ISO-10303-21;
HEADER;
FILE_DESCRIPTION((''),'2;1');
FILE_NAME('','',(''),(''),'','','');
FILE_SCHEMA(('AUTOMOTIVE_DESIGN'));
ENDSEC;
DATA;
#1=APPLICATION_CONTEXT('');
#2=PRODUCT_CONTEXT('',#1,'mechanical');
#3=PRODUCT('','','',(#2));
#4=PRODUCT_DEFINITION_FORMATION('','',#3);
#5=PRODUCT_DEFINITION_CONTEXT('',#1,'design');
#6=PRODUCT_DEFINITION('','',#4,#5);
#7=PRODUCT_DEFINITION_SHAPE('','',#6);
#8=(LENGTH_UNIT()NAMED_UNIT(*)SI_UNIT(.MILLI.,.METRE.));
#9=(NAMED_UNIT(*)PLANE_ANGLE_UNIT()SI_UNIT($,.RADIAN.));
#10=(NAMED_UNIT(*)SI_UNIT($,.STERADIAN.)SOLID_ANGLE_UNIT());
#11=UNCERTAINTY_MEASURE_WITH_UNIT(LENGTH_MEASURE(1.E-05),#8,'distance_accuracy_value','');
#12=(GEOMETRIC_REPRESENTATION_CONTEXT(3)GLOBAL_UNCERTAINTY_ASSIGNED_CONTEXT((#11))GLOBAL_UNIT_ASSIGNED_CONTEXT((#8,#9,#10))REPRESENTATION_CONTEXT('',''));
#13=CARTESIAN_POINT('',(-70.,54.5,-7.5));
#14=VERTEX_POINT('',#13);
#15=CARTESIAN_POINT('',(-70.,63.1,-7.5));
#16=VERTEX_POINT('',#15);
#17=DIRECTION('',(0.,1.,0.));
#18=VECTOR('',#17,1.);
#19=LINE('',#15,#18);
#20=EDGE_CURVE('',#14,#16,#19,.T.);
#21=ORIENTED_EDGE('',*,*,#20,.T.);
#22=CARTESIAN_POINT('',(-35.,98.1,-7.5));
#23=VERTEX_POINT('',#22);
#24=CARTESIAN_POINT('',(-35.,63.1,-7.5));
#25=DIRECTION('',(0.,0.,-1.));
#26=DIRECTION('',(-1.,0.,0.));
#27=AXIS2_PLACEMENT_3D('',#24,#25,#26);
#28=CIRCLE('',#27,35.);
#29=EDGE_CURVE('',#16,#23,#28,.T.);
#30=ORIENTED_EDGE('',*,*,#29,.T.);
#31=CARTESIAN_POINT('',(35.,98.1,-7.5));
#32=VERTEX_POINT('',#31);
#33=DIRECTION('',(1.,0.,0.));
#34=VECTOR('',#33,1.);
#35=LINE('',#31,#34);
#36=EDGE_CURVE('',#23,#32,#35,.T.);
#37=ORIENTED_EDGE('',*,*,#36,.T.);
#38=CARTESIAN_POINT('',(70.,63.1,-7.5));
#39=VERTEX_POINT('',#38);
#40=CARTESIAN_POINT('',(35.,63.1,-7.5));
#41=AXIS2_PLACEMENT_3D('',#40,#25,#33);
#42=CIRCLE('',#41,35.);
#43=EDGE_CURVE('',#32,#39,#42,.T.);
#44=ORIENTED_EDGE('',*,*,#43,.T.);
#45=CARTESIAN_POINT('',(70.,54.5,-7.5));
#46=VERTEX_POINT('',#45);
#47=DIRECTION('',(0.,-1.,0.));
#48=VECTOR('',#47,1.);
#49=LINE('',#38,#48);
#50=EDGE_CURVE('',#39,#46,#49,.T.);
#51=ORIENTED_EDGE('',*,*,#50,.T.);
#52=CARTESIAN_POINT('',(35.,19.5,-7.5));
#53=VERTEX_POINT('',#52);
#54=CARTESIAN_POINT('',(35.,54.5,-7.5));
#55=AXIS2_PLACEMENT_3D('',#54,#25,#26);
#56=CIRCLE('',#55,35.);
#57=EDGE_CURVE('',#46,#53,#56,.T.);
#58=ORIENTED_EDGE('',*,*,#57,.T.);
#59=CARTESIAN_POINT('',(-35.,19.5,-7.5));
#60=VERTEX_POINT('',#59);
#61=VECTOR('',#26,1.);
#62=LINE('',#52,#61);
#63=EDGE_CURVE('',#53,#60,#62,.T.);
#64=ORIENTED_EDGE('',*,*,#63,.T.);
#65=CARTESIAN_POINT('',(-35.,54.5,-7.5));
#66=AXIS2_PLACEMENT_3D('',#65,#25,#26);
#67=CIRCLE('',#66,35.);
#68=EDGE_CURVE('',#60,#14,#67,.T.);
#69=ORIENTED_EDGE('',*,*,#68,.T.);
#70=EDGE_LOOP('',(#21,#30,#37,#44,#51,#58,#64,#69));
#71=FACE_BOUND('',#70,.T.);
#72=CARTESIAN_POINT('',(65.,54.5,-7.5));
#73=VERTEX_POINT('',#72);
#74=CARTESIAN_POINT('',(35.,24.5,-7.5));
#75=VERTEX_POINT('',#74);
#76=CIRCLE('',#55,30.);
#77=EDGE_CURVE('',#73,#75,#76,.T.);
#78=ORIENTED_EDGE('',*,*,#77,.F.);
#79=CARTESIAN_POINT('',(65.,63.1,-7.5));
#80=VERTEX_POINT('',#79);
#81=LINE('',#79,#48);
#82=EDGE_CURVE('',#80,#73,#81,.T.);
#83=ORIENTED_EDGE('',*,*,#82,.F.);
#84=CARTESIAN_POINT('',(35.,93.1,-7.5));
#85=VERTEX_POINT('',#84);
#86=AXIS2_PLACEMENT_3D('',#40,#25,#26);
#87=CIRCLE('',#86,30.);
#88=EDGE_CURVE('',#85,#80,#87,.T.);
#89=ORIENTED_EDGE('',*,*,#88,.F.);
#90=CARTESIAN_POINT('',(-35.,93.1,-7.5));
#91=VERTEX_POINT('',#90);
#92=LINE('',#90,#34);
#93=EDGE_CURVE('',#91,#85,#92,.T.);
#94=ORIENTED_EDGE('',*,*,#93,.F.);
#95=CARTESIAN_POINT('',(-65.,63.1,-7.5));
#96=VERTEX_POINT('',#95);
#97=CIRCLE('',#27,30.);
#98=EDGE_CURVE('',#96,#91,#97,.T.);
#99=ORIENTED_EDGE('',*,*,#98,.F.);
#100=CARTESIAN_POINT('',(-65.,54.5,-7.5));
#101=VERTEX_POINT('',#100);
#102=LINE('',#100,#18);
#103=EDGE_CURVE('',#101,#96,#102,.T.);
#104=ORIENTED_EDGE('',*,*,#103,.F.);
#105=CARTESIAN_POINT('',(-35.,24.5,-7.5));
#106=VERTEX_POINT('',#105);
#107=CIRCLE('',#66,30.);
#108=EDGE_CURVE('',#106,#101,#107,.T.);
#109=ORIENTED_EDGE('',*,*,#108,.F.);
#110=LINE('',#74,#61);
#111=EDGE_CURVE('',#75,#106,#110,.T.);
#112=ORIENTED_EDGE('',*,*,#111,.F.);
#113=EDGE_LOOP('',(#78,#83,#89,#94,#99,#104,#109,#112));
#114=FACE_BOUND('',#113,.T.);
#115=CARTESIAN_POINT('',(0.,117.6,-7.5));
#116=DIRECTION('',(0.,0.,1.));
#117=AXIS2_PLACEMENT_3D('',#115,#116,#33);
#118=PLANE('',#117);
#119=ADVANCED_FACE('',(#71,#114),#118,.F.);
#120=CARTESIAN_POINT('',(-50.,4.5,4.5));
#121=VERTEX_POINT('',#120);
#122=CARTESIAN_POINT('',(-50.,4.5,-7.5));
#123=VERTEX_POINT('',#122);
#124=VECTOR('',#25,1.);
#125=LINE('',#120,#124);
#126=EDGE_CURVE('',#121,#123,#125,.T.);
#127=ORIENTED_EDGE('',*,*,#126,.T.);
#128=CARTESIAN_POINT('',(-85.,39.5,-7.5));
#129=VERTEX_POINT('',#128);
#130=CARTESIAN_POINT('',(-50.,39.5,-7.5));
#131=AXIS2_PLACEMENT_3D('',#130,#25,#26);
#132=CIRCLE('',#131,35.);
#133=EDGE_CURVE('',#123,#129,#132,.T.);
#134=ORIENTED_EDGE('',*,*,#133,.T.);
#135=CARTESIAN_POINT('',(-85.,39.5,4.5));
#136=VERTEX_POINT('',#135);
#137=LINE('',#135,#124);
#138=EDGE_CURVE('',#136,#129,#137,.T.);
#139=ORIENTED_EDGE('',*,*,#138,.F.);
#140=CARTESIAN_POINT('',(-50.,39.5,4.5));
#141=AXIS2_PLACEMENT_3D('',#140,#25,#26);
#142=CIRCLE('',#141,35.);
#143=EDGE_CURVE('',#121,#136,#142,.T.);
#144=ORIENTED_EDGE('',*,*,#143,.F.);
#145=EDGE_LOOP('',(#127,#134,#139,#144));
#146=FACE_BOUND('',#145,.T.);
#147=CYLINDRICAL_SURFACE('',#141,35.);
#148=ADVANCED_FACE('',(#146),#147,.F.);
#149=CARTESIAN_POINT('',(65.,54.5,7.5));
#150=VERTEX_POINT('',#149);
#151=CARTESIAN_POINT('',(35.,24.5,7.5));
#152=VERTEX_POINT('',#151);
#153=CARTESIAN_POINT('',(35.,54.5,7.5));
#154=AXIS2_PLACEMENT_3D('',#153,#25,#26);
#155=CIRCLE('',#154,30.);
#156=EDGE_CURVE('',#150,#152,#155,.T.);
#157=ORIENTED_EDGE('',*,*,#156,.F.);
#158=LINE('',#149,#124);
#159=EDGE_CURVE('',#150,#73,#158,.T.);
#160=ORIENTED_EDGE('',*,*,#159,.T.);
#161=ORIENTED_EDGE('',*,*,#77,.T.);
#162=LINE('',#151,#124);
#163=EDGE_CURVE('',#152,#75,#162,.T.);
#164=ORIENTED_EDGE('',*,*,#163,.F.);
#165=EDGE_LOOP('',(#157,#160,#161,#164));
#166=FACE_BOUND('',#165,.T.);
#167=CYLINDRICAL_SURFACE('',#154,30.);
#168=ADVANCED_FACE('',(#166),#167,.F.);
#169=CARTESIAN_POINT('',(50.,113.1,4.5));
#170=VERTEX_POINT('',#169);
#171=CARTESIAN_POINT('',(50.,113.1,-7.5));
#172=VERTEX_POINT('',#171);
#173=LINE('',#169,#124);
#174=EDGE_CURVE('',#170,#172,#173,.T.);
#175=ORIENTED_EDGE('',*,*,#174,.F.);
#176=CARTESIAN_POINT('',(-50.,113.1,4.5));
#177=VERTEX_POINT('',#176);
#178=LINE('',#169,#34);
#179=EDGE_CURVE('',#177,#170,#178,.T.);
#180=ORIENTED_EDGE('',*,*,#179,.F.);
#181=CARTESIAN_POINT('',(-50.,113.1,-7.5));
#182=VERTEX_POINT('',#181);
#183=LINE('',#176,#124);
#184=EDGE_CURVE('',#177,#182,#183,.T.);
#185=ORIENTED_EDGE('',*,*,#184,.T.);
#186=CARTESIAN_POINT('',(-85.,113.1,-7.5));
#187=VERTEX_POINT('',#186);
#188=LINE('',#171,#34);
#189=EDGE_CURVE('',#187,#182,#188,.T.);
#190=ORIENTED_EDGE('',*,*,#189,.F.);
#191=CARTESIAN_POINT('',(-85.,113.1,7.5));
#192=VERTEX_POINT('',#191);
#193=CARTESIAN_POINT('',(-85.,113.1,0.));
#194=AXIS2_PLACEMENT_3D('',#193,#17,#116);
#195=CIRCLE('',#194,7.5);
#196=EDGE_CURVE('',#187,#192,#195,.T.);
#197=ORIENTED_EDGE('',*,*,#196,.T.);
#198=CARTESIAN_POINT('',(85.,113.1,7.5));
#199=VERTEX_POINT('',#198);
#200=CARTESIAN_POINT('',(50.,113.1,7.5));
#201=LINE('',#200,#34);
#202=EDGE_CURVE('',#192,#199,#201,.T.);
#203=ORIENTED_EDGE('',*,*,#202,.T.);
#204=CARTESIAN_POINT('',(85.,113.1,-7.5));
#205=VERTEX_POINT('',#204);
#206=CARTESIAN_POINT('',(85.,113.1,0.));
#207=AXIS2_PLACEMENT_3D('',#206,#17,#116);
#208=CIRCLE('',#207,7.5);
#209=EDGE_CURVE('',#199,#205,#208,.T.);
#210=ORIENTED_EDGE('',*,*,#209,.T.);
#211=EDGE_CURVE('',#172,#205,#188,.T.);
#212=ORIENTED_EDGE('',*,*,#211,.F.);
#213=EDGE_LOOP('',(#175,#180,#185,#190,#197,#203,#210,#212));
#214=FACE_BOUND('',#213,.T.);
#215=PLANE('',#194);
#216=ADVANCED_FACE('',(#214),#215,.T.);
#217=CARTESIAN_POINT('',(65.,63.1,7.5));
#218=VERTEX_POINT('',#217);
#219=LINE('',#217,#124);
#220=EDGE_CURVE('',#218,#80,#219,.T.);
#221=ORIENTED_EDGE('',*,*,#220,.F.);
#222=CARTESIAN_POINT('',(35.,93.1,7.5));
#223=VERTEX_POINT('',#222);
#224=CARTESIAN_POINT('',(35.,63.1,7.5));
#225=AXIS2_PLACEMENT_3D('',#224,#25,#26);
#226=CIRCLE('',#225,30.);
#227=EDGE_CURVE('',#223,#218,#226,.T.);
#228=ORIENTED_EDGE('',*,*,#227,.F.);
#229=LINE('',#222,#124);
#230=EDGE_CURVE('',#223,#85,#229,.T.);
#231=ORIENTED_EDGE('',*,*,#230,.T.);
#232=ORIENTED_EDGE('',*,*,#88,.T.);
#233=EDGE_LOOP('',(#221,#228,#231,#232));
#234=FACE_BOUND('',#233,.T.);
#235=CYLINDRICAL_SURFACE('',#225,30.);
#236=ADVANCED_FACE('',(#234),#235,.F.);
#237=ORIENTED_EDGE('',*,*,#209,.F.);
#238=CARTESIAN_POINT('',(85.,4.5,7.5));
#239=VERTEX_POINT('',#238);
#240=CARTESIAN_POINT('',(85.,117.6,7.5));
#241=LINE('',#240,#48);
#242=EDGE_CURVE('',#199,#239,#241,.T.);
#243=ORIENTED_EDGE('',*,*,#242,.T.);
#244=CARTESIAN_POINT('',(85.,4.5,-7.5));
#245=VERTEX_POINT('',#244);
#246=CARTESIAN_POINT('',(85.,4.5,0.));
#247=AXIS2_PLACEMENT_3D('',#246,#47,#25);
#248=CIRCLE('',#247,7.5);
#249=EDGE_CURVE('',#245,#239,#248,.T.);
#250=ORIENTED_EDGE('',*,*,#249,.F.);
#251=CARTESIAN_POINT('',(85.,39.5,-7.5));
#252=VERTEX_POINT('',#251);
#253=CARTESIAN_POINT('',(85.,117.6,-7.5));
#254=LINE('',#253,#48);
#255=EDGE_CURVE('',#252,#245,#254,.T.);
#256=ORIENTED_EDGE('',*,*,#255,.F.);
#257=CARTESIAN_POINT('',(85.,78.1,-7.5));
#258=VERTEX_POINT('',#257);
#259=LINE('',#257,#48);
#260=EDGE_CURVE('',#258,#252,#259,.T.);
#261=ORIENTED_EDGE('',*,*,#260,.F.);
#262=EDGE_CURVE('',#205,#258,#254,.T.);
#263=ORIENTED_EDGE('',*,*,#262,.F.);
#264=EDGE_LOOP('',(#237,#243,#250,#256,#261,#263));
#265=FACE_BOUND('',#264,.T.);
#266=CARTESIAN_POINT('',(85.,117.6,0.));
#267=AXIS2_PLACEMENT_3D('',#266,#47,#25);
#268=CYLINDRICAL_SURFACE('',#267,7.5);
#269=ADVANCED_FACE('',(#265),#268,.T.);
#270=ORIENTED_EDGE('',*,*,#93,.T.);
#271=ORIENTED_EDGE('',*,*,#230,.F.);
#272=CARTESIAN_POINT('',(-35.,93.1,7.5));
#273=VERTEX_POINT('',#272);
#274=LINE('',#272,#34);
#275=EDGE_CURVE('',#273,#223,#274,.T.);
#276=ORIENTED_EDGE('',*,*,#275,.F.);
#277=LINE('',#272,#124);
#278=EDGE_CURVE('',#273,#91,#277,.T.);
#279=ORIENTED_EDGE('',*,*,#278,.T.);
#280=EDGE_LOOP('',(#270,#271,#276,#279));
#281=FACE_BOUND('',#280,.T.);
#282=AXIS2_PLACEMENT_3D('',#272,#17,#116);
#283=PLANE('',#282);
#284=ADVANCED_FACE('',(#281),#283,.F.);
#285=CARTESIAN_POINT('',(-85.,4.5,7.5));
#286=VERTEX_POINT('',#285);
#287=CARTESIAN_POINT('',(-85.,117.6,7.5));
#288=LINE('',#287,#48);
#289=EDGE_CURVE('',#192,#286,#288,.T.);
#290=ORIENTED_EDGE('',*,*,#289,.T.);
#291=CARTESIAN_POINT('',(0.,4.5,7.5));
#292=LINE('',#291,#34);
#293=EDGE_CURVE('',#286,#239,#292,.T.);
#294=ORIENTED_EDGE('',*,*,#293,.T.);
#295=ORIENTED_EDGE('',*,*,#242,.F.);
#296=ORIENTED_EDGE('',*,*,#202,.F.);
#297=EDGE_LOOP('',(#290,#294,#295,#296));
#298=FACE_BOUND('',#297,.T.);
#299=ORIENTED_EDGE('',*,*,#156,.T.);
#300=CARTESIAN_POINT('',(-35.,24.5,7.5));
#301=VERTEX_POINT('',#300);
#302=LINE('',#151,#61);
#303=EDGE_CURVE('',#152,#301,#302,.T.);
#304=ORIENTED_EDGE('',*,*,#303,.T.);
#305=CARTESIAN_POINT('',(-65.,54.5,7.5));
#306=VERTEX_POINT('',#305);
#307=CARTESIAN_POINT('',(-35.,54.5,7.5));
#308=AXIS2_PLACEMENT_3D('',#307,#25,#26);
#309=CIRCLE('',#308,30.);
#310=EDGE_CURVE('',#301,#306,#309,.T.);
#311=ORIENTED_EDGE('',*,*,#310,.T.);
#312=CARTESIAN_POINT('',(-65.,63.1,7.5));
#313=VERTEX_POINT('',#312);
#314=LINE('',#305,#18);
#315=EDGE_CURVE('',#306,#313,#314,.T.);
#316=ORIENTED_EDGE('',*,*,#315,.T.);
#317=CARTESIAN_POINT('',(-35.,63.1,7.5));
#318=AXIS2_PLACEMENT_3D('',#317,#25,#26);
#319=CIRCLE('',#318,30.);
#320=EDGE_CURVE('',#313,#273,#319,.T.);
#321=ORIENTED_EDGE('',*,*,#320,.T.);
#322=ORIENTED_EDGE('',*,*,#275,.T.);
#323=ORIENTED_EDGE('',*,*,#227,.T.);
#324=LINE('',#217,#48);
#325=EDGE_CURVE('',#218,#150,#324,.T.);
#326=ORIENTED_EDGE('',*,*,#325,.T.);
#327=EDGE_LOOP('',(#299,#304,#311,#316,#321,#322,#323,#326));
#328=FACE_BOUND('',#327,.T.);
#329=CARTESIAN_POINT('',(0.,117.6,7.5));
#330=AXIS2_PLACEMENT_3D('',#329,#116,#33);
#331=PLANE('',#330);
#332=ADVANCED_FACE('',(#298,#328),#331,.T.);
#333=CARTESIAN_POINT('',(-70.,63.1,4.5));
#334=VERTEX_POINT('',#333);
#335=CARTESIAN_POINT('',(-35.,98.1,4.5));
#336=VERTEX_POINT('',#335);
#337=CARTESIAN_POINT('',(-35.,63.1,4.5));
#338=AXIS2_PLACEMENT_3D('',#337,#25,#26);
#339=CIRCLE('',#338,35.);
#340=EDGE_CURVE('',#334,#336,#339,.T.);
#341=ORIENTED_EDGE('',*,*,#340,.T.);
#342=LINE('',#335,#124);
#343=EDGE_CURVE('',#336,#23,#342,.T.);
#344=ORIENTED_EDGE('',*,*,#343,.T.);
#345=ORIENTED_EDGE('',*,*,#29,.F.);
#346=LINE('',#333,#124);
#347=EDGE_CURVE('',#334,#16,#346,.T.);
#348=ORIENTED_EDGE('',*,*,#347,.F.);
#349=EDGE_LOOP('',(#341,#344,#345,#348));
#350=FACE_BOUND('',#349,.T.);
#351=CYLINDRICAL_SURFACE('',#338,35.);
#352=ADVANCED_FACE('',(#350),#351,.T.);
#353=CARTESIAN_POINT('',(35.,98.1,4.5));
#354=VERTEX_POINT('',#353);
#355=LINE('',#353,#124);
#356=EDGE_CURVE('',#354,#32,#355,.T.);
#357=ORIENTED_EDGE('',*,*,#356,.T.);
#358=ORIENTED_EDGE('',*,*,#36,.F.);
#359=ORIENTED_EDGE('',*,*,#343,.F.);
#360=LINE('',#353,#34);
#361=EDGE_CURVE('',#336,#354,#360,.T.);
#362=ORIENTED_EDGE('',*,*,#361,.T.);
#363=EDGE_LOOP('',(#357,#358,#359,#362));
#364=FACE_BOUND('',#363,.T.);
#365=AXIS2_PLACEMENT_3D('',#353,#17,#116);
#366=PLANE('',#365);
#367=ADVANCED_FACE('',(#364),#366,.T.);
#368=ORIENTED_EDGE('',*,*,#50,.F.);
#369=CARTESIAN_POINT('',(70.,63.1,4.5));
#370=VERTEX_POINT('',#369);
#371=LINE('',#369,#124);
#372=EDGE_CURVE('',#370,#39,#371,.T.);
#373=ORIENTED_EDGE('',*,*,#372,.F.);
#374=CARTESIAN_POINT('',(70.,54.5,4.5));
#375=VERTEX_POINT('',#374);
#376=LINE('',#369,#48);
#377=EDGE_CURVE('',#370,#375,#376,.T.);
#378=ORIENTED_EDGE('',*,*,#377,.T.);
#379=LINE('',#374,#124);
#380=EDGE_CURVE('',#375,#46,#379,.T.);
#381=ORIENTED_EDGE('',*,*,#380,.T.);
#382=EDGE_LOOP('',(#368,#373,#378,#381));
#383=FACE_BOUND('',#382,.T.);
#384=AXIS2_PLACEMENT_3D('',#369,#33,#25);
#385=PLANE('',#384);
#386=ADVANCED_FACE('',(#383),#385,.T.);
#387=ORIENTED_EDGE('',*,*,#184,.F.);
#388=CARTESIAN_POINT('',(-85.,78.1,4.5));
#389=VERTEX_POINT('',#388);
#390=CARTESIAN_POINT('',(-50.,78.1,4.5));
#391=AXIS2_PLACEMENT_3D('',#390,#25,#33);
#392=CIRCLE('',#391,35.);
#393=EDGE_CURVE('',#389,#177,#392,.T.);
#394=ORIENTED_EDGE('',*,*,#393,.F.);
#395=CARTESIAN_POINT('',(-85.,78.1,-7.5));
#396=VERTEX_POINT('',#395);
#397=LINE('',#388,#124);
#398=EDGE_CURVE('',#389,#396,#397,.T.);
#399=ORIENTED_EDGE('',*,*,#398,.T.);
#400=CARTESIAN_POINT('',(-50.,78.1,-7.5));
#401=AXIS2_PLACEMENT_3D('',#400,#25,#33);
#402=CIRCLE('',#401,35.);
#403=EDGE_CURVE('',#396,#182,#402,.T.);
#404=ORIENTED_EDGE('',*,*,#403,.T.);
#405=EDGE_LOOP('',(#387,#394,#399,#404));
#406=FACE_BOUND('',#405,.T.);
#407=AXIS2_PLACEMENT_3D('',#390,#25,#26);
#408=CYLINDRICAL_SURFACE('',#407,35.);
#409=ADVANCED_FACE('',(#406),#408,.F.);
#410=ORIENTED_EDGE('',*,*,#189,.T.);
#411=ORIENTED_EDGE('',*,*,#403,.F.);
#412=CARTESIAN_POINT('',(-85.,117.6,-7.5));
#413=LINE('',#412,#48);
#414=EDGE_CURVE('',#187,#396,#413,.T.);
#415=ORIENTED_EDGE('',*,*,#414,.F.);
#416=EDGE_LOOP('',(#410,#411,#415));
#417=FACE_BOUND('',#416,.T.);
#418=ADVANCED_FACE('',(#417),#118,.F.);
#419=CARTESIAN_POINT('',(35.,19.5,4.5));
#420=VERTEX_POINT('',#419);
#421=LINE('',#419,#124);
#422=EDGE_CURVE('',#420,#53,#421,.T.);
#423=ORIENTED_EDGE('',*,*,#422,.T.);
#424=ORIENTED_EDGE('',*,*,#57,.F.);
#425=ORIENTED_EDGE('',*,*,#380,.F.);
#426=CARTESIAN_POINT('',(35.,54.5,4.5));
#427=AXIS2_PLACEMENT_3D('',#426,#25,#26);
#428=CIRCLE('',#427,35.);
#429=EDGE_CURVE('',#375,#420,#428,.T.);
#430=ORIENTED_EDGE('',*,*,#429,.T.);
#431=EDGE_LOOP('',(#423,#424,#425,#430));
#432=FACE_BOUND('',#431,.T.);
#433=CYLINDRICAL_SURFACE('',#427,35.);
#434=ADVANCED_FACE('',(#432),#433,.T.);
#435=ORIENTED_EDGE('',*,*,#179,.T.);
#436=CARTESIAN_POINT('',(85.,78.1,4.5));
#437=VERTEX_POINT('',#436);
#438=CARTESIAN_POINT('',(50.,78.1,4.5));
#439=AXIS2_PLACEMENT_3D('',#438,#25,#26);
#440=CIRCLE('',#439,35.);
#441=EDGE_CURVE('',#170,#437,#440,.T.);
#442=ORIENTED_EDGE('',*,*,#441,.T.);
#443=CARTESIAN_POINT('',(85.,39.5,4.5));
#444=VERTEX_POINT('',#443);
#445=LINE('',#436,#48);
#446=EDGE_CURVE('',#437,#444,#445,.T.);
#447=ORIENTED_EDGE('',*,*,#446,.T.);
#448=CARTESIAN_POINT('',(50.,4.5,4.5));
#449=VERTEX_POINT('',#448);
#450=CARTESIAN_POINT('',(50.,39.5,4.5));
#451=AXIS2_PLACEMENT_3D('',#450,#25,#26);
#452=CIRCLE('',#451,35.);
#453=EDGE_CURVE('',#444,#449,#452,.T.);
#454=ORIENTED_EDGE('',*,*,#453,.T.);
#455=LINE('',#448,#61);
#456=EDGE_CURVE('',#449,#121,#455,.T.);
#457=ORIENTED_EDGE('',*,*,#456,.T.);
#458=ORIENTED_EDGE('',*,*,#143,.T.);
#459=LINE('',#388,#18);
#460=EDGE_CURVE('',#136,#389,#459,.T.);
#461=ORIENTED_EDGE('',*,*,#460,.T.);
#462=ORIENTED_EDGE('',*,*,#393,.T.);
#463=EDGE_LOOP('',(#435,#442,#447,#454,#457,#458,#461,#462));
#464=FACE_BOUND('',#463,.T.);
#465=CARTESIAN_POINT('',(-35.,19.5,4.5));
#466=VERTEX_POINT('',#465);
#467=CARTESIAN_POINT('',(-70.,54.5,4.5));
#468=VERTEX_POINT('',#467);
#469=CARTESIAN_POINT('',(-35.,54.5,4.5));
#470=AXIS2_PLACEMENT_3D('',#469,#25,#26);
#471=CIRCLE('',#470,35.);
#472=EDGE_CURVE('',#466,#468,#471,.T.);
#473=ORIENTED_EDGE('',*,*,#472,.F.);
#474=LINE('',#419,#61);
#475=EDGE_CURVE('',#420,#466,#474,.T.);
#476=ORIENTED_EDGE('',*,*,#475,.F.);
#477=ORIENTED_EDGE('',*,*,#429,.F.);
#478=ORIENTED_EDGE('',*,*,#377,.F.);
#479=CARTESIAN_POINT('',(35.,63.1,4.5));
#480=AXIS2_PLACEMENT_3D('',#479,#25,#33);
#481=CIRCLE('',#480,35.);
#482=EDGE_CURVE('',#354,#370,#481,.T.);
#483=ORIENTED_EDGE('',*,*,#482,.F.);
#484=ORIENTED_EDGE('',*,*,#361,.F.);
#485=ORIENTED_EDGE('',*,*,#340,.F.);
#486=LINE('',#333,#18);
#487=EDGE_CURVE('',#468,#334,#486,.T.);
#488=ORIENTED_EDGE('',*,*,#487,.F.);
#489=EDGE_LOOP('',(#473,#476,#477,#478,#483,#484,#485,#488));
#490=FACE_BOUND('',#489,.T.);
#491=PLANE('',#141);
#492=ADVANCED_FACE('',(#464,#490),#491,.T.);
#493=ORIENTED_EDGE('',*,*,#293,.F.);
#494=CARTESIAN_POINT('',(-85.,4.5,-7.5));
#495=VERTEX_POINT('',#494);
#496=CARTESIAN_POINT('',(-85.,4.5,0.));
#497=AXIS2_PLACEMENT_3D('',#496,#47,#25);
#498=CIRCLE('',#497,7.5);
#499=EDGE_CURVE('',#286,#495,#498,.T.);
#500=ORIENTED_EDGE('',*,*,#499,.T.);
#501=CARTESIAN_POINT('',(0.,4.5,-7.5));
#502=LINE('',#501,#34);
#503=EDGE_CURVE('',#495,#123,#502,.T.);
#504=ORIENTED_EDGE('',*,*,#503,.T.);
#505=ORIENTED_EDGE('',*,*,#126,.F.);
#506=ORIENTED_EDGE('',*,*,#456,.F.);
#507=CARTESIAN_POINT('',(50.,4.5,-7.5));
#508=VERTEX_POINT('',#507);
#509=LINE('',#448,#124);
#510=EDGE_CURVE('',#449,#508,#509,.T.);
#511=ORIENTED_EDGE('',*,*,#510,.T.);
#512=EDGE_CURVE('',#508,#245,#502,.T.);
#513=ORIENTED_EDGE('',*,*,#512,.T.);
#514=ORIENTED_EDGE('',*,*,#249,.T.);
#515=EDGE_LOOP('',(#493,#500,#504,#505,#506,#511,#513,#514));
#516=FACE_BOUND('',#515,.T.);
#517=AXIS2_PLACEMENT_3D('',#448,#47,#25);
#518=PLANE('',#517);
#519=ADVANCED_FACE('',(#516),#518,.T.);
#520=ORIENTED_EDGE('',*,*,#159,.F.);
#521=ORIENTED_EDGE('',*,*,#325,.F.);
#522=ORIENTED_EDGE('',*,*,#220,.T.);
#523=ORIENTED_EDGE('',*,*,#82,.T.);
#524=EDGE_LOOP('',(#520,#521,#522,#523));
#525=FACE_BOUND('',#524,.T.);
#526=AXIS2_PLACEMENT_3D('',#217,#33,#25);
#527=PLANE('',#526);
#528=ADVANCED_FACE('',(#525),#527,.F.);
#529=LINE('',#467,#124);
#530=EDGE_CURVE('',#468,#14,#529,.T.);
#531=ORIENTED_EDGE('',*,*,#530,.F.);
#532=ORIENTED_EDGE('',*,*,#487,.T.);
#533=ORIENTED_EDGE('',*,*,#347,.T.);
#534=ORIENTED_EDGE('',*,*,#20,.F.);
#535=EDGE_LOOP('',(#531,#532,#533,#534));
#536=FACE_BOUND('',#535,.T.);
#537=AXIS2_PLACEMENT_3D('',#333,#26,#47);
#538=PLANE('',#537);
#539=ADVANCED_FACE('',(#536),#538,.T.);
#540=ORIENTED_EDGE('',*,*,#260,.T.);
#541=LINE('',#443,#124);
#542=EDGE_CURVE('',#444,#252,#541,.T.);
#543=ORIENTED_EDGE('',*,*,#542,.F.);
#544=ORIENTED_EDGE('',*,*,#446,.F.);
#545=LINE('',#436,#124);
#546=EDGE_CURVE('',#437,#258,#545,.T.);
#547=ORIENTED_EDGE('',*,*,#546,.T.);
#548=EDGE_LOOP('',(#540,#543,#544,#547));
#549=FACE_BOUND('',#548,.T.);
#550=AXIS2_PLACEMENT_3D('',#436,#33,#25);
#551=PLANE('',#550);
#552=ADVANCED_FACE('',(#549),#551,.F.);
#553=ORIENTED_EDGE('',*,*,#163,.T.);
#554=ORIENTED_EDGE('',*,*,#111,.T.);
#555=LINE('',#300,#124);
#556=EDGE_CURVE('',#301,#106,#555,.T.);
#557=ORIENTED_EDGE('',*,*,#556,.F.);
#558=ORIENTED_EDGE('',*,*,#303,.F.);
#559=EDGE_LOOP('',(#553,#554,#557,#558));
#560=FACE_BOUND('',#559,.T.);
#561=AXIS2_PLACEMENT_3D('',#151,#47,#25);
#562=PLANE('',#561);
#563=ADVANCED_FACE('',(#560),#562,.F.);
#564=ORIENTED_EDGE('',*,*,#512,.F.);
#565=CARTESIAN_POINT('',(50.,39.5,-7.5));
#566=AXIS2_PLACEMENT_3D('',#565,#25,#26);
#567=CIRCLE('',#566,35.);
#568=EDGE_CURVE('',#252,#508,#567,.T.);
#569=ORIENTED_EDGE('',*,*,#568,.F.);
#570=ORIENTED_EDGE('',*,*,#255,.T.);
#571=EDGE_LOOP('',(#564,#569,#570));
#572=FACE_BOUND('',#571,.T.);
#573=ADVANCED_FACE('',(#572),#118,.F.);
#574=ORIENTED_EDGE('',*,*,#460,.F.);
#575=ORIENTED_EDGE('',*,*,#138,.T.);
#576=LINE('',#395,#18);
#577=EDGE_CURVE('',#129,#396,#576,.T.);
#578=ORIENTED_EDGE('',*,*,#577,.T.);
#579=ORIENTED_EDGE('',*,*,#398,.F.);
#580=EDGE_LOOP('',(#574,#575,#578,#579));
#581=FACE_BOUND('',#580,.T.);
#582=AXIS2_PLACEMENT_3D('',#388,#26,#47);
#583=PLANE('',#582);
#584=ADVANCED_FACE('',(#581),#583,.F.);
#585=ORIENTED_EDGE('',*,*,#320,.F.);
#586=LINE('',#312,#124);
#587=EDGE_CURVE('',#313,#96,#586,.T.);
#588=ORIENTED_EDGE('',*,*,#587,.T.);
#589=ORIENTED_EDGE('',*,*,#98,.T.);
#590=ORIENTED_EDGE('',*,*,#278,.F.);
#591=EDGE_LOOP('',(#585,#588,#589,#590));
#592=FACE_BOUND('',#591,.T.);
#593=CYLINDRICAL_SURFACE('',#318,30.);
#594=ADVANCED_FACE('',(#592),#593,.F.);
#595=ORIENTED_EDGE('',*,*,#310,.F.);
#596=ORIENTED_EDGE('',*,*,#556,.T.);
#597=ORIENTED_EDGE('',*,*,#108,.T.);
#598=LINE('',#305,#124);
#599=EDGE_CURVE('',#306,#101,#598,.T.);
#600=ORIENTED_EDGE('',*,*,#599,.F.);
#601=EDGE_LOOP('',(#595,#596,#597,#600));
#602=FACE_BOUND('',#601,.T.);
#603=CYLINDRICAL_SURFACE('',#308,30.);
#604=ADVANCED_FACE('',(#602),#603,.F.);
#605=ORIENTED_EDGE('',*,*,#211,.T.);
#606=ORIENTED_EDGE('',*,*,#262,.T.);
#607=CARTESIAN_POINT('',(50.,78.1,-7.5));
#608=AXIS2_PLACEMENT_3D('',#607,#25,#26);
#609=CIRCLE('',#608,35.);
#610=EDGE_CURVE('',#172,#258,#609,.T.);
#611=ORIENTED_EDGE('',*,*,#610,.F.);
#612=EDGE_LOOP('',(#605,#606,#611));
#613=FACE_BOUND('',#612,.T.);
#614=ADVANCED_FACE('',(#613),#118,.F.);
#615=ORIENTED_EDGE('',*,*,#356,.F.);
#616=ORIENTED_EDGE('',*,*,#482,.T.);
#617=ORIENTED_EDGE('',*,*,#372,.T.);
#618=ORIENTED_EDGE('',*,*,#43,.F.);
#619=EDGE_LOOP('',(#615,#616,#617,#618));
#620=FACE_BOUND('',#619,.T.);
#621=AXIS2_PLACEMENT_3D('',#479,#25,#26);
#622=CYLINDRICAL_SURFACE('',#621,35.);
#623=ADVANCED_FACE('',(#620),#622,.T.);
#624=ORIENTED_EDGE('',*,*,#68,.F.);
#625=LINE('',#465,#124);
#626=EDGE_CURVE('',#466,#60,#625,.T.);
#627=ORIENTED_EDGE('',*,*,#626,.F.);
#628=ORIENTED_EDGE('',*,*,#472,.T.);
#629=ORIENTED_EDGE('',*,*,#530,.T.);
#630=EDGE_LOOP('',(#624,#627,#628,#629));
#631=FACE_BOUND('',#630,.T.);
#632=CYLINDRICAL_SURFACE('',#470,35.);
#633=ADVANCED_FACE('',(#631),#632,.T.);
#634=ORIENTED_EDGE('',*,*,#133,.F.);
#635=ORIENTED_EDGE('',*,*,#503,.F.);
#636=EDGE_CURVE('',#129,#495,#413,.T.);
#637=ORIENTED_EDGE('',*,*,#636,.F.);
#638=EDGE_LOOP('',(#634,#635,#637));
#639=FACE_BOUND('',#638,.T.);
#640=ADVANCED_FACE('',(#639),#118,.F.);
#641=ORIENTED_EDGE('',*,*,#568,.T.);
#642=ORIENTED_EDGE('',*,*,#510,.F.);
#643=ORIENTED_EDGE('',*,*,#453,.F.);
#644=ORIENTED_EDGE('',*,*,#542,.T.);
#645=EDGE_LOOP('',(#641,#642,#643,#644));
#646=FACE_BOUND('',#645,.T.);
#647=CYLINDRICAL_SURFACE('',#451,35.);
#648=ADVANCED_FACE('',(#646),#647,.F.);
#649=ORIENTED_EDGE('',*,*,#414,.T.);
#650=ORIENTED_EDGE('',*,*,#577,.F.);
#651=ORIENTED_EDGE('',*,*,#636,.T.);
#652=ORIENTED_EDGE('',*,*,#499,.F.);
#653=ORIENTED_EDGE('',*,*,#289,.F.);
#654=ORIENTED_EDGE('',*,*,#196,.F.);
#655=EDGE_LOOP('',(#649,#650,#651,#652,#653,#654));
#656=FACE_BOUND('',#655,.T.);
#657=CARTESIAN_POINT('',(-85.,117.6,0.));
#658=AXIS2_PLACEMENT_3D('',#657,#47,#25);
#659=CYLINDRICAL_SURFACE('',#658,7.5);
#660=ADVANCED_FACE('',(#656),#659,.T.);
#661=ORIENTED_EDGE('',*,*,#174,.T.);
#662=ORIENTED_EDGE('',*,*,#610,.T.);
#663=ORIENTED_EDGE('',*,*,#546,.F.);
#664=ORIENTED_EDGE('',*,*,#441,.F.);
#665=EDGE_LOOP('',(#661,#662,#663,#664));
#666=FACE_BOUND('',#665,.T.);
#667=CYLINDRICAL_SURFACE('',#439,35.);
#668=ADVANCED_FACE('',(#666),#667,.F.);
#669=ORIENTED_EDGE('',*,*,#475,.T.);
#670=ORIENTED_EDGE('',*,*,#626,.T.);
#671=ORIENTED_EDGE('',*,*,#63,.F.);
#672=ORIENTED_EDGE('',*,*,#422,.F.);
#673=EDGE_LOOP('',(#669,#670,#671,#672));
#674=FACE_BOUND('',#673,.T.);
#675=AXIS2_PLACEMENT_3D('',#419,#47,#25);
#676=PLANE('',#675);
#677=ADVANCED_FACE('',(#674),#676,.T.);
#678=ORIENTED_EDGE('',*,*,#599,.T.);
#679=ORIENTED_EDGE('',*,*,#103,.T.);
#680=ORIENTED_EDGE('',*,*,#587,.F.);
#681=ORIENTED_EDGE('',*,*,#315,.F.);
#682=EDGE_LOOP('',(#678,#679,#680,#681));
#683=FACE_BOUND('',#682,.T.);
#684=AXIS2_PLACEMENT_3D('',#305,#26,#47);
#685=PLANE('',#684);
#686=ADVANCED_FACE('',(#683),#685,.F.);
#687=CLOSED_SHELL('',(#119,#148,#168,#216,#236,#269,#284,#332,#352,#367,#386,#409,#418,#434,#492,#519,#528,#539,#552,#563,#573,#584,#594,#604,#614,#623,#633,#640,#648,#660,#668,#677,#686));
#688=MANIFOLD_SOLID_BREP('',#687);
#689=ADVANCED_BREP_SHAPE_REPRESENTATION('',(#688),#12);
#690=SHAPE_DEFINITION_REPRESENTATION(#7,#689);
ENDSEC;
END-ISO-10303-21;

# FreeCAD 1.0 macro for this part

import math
import FreeCAD as App
import Part
import Sketcher

doc = App.newDocument("Part")
params = doc.addObject("Spreadsheet::Sheet", "Params")
for row, (alias, value) in enumerate([
    ("sketch1_radius", "7.5 mm"),
    ("sketch1_width", "170 mm"),
    ("pad1_length", "117.6 mm"),
    ("sketch2_radius", "35 mm"),
    ("sketch2_width", "100 mm"),
    ("sketch2_width2", "70 mm"),
    ("sketch2_height", "38.6 mm"),
    ("sketch2_height2", "8.6 mm"),
    ("pocket1_length", "12 mm"),
    ("sketch3_radius", "30 mm"),
    ("sketch3_width", "70 mm"),
    ("sketch3_height", "8.6 mm"),
    ("sketch4_radius", "2 mm"),
    ("sketch4_radius2", "3.5 mm"),
    ("pocket3_length", "4.5 mm"),
    ("sketch5_radius", "2 mm"),
    ("sketch5_radius2", "3.5 mm"),
    ("pocket4_length", "4.5 mm"),
    ("sketch6_radius", "2 mm"),
    ("sketch6_radius2", "7.5 mm"),
    ("sketch6_radius3", "3.5 mm"),
    ("sketch6_width", "170 mm"),
    ("pocket5_length", "4.5 mm"),
    ("sketch7_radius", "7.5 mm"),
    ("sketch7_width", "170 mm"),
    ("pocket6_length", "4.5 mm"),
], start=1):
    params.set(f"A{row}", alias)
    params.set(f"B{row}", "=" + value)
    params.setAlias(f"B{row}", alias)

body = doc.addObject("PartDesign::Body", "Body")

sketch1 = body.newObject("Sketcher::SketchObject", "Sketch")
sketch1.AttachmentSupport = (doc.getObject("XZ_Plane"), [""])
sketch1.MapMode = "FlatFace"
sketch1.addGeometry(Part.LineSegment(App.Vector(-85, 7.5, 0), App.Vector(85, 7.5, 0)), False)
sketch1.addGeometry(Part.ArcOfCircle(Part.Circle(App.Vector(85, 0, 0), App.Vector(0, 0, 1), 7.5), math.radians(-90), math.radians(90)), False)
sketch1.addGeometry(Part.LineSegment(App.Vector(85, -7.5, 0), App.Vector(-85, -7.5, 0)), False)
sketch1.addGeometry(Part.ArcOfCircle(Part.Circle(App.Vector(-85, 0, 0), App.Vector(0, 0, 1), 7.5), math.radians(90), math.radians(270)), False)
sketch1.addConstraint(Sketcher.Constraint("Tangent", 0, 2, 1, 2))
sketch1.addConstraint(Sketcher.Constraint("Tangent", 1, 1, 2, 1))
sketch1.addConstraint(Sketcher.Constraint("Tangent", 2, 2, 3, 2))
sketch1.addConstraint(Sketcher.Constraint("Tangent", 3, 1, 0, 1))
sketch1.addConstraint(Sketcher.Constraint("Horizontal", 0))
sketch1.addConstraint(Sketcher.Constraint("Horizontal", 2))
sketch1.addConstraint(Sketcher.Constraint("Symmetric", 1, 3, 3, 3, -1, 1))
sketch1.addConstraint(Sketcher.Constraint("Radius", 1, 7.5))
sketch1.addConstraint(Sketcher.Constraint("DistanceX", 0, 1, 0, 2, 170.0))
sketch1.setExpression("Constraints[7]", "Params.sketch1_radius")
sketch1.setExpression("Constraints[8]", "Params.sketch1_width")
pad1 = body.newObject("PartDesign::Pad", "Pad")
pad1.Profile = sketch1
pad1.setExpression("Length", "Params.pad1_length")
pad1.Reversed = True

sketch2 = body.newObject("Sketcher::SketchObject", "Sketch001")
sketch2.AttachmentSupport = (doc.getObject("XY_Plane"), [""])
sketch2.MapMode = "FlatFace"
sketch2.AttachmentOffset = App.Placement(App.Vector(0, 0, -7.5), App.Rotation())
sketch2.addGeometry(Part.LineSegment(App.Vector(-50, 113.1, 0), App.Vector(50, 113.1, 0)), False)
sketch2.addGeometry(Part.ArcOfCircle(Part.Circle(App.Vector(50, 78.1, 0), App.Vector(0, 0, 1), 35), math.radians(0), math.radians(90)), False)
sketch2.addGeometry(Part.LineSegment(App.Vector(85, 78.1, 0), App.Vector(85, 39.5, 0)), False)
sketch2.addGeometry(Part.ArcOfCircle(Part.Circle(App.Vector(50, 39.5, 0), App.Vector(0, 0, 1), 35), math.radians(-90), math.radians(0)), False)
sketch2.addGeometry(Part.LineSegment(App.Vector(50, 4.5, 0), App.Vector(-50, 4.5, 0)), False)
sketch2.addGeometry(Part.ArcOfCircle(Part.Circle(App.Vector(-50, 39.5, 0), App.Vector(0, 0, 1), 35), math.radians(180), math.radians(270)), False)
sketch2.addGeometry(Part.LineSegment(App.Vector(-85, 39.5, 0), App.Vector(-85, 78.1, 0)), False)
sketch2.addGeometry(Part.ArcOfCircle(Part.Circle(App.Vector(-50, 78.1, 0), App.Vector(0, 0, 1), 35), math.radians(90), math.radians(180)), False)
sketch2.addGeometry(Part.ArcOfCircle(Part.Circle(App.Vector(35, 63.1, 0), App.Vector(0, 0, 1), 35), math.radians(0), math.radians(90)), False)
sketch2.addGeometry(Part.LineSegment(App.Vector(35, 98.1, 0), App.Vector(-35, 98.1, 0)), False)
sketch2.addGeometry(Part.ArcOfCircle(Part.Circle(App.Vector(-35, 63.1, 0), App.Vector(0, 0, 1), 35), math.radians(90), math.radians(180)), False)
sketch2.addGeometry(Part.LineSegment(App.Vector(-70, 63.1, 0), App.Vector(-70, 54.5, 0)), False)
sketch2.addGeometry(Part.ArcOfCircle(Part.Circle(App.Vector(-35, 54.5, 0), App.Vector(0, 0, 1), 35), math.radians(180), math.radians(270)), False)
sketch2.addGeometry(Part.LineSegment(App.Vector(-35, 19.5, 0), App.Vector(35, 19.5, 0)), False)
sketch2.addGeometry(Part.ArcOfCircle(Part.Circle(App.Vector(35, 54.5, 0), App.Vector(0, 0, 1), 35), math.radians(-90), math.radians(0)), False)
sketch2.addGeometry(Part.LineSegment(App.Vector(70, 54.5, 0), App.Vector(70, 63.1, 0)), False)
sketch2.addConstraint(Sketcher.Constraint("Tangent", 0, 2, 1, 2))
sketch2.addConstraint(Sketcher.Constraint("Tangent", 1, 1, 2, 1))
sketch2.addConstraint(Sketcher.Constraint("Tangent", 2, 2, 3, 2))
sketch2.addConstraint(Sketcher.Constraint("Tangent", 3, 1, 4, 1))
sketch2.addConstraint(Sketcher.Constraint("Tangent", 4, 2, 5, 2))
sketch2.addConstraint(Sketcher.Constraint("Tangent", 5, 1, 6, 1))
sketch2.addConstraint(Sketcher.Constraint("Tangent", 6, 2, 7, 2))
sketch2.addConstraint(Sketcher.Constraint("Tangent", 7, 1, 0, 1))
sketch2.addConstraint(Sketcher.Constraint("Tangent", 8, 2, 9, 1))
sketch2.addConstraint(Sketcher.Constraint("Tangent", 9, 2, 10, 1))
sketch2.addConstraint(Sketcher.Constraint("Tangent", 10, 2, 11, 1))
sketch2.addConstraint(Sketcher.Constraint("Tangent", 11, 2, 12, 1))
sketch2.addConstraint(Sketcher.Constraint("Tangent", 12, 2, 13, 1))
sketch2.addConstraint(Sketcher.Constraint("Tangent", 13, 2, 14, 1))
sketch2.addConstraint(Sketcher.Constraint("Tangent", 14, 2, 15, 1))
sketch2.addConstraint(Sketcher.Constraint("Tangent", 15, 2, 8, 1))
sketch2.addConstraint(Sketcher.Constraint("Horizontal", 0))
sketch2.addConstraint(Sketcher.Constraint("Vertical", 2))
sketch2.addConstraint(Sketcher.Constraint("Horizontal", 4))
sketch2.addConstraint(Sketcher.Constraint("Vertical", 6))
sketch2.addConstraint(Sketcher.Constraint("Horizontal", 9))
sketch2.addConstraint(Sketcher.Constraint("Vertical", 11))
sketch2.addConstraint(Sketcher.Constraint("Horizontal", 13))
sketch2.addConstraint(Sketcher.Constraint("Vertical", 15))
sketch2.addConstraint(Sketcher.Constraint("Equal", 1, 3))
sketch2.addConstraint(Sketcher.Constraint("Equal", 3, 5))
sketch2.addConstraint(Sketcher.Constraint("Equal", 5, 7))
sketch2.addConstraint(Sketcher.Constraint("Equal", 7, 8))
sketch2.addConstraint(Sketcher.Constraint("Equal", 8, 10))
sketch2.addConstraint(Sketcher.Constraint("Equal", 10, 12))
sketch2.addConstraint(Sketcher.Constraint("Equal", 12, 14))
sketch2.addConstraint(Sketcher.Constraint("Radius", 1, 35.0))
sketch2.addConstraint(Sketcher.Constraint("DistanceX", 0, 1, 0, 2, 100.0))
sketch2.addConstraint(Sketcher.Constraint("DistanceX", 9, 2, 9, 1, 70.0))
sketch2.addConstraint(Sketcher.Constraint("DistanceY", 2, 2, 2, 1, 38.6))
sketch2.addConstraint(Sketcher.Constraint("DistanceY", 11, 2, 11, 1, 8.6))
sketch2.addConstraint(Sketcher.Constraint("DistanceX", -1, 1, 1, 3, 50.0))
sketch2.addConstraint(Sketcher.Constraint("DistanceX", -1, 1, 8, 3, 35.0))
sketch2.addConstraint(Sketcher.Constraint("DistanceY", 8, 3, 1, 3, 15.0))
sketch2.addConstraint(Sketcher.Constraint("DistanceY", -1, 1, 1, 3, 78.1))
sketch2.setExpression("Constraints[31]", "Params.sketch2_radius")
sketch2.setExpression("Constraints[32]", "Params.sketch2_width")
sketch2.setExpression("Constraints[33]", "Params.sketch2_width2")
sketch2.setExpression("Constraints[34]", "Params.sketch2_height")
sketch2.setExpression("Constraints[35]", "Params.sketch2_height2")
pocket1 = body.newObject("PartDesign::Pocket", "Pocket")
pocket1.Profile = sketch2
pocket1.setExpression("Length", "Params.pocket1_length")
pocket1.Reversed = True

sketch3 = body.newObject("Sketcher::SketchObject", "Sketch002")
sketch3.AttachmentSupport = (doc.getObject("XY_Plane"), [""])
sketch3.MapMode = "FlatFace"
sketch3.AttachmentOffset = App.Placement(App.Vector(0, 0, -7.5), App.Rotation())
sketch3.addGeometry(Part.LineSegment(App.Vector(35, 24.5, 0), App.Vector(-35, 24.5, 0)), False)
sketch3.addGeometry(Part.ArcOfCircle(Part.Circle(App.Vector(-35, 54.5, 0), App.Vector(0, 0, 1), 30), math.radians(180), math.radians(270)), False)
sketch3.addGeometry(Part.LineSegment(App.Vector(-65, 54.5, 0), App.Vector(-65, 63.1, 0)), False)
sketch3.addGeometry(Part.ArcOfCircle(Part.Circle(App.Vector(-35, 63.1, 0), App.Vector(0, 0, 1), 30), math.radians(90), math.radians(180)), False)
sketch3.addGeometry(Part.LineSegment(App.Vector(-35, 93.1, 0), App.Vector(35, 93.1, 0)), False)
sketch3.addGeometry(Part.ArcOfCircle(Part.Circle(App.Vector(35, 63.1, 0), App.Vector(0, 0, 1), 30), math.radians(0), math.radians(90)), False)
sketch3.addGeometry(Part.LineSegment(App.Vector(65, 63.1, 0), App.Vector(65, 54.5, 0)), False)
sketch3.addGeometry(Part.ArcOfCircle(Part.Circle(App.Vector(35, 54.5, 0), App.Vector(0, 0, 1), 30), math.radians(-90), math.radians(0)), False)
sketch3.addConstraint(Sketcher.Constraint("Tangent", 0, 2, 1, 2))
sketch3.addConstraint(Sketcher.Constraint("Tangent", 1, 1, 2, 1))
sketch3.addConstraint(Sketcher.Constraint("Tangent", 2, 2, 3, 2))
sketch3.addConstraint(Sketcher.Constraint("Tangent", 3, 1, 4, 1))
sketch3.addConstraint(Sketcher.Constraint("Tangent", 4, 2, 5, 2))
sketch3.addConstraint(Sketcher.Constraint("Tangent", 5, 1, 6, 1))
sketch3.addConstraint(Sketcher.Constraint("Tangent", 6, 2, 7, 2))
sketch3.addConstraint(Sketcher.Constraint("Tangent", 7, 1, 0, 1))
sketch3.addConstraint(Sketcher.Constraint("Horizontal", 0))
sketch3.addConstraint(Sketcher.Constraint("Vertical", 2))
sketch3.addConstraint(Sketcher.Constraint("Horizontal", 4))
sketch3.addConstraint(Sketcher.Constraint("Vertical", 6))
sketch3.addConstraint(Sketcher.Constraint("Equal", 1, 3))
sketch3.addConstraint(Sketcher.Constraint("Equal", 3, 5))
sketch3.addConstraint(Sketcher.Constraint("Equal", 5, 7))
sketch3.addConstraint(Sketcher.Constraint("Radius", 1, 30.0))
sketch3.addConstraint(Sketcher.Constraint("DistanceX", 0, 2, 0, 1, 70.0))
sketch3.addConstraint(Sketcher.Constraint("DistanceY", 2, 1, 2, 2, 8.6))
sketch3.addConstraint(Sketcher.Constraint("DistanceX", 1, 3, -1, 1, 35.0))
sketch3.addConstraint(Sketcher.Constraint("DistanceY", -1, 1, 1, 3, 54.5))
sketch3.setExpression("Constraints[15]", "Params.sketch3_radius")
sketch3.setExpression("Constraints[16]", "Params.sketch3_width")
sketch3.setExpression("Constraints[17]", "Params.sketch3_height")
pocket2 = body.newObject("PartDesign::Pocket", "Pocket001")
pocket2.Profile = sketch3
pocket2.Type = "ThroughAll"
pocket2.Reversed = True

sketch4 = body.newObject("Sketcher::SketchObject", "Sketch003")
sketch4.AttachmentSupport = (doc.getObject("XZ_Plane"), [""])
sketch4.MapMode = "FlatFace"
sketch4.addGeometry(Part.LineSegment(App.Vector(8.224877, 2.5, 0), App.Vector(15.341569, 1.994983, 0)), False)
sketch4.addGeometry(Part.ArcOfCircle(Part.Circle(App.Vector(15.2, 0, 0), App.Vector(0, 0, 1), 2), math.radians(-85.940965), math.radians(85.940965)), False)
sketch4.addGeometry(Part.LineSegment(App.Vector(15.341569, -1.994983, 0), App.Vector(1.883481, -2.95, 0)), False)
sketch4.addGeometry(Part.ArcOfCircle(Part.Circle(App.Vector(0, 0, 0), App.Vector(0, 0, 1), 3.5), math.radians(-122.556932), math.radians(-57.443068)), False)
sketch4.addGeometry(Part.LineSegment(App.Vector(-1.883481, -2.95, 0), App.Vector(-15.341569, -1.994983, 0)), False)
sketch4.addGeometry(Part.ArcOfCircle(Part.Circle(App.Vector(-15.2, 0, 0), App.Vector(0, 0, 1), 2), math.radians(94.059035), math.radians(265.940965)), False)
sketch4.addGeometry(Part.LineSegment(App.Vector(-15.341569, 1.994983, 0), App.Vector(-8.224877, 2.5, 0)), False)
sketch4.addGeometry(Part.LineSegment(App.Vector(-8.224877, 2.5, 0), App.Vector(-1.883481, 2.95, 0)), False)
sketch4.addGeometry(Part.ArcOfCircle(Part.Circle(App.Vector(0, 0, 0), App.Vector(0, 0, 1), 3.5), math.radians(57.443068), math.radians(122.556932)), False)
sketch4.addGeometry(Part.LineSegment(App.Vector(1.883481, 2.95, 0), App.Vector(8.224877, 2.5, 0)), False)
sketch4.addConstraint(Sketcher.Constraint("Tangent", 0, 2, 1, 2))
sketch4.addConstraint(Sketcher.Constraint("Tangent", 1, 1, 2, 1))
sketch4.addConstraint(Sketcher.Constraint("Coincident", 2, 2, 3, 2))
sketch4.addConstraint(Sketcher.Constraint("Coincident", 3, 1, 4, 1))
sketch4.addConstraint(Sketcher.Constraint("Tangent", 4, 2, 5, 2))
sketch4.addConstraint(Sketcher.Constraint("Tangent", 5, 1, 6, 1))
sketch4.addConstraint(Sketcher.Constraint("Coincident", 6, 2, 7, 1))
sketch4.addConstraint(Sketcher.Constraint("Coincident", 7, 2, 8, 2))
sketch4.addConstraint(Sketcher.Constraint("Coincident", 8, 1, 9, 1))
sketch4.addConstraint(Sketcher.Constraint("Coincident", 9, 2, 0, 1))
sketch4.addConstraint(Sketcher.Constraint("Coincident", 3, 3, -1, 1))
sketch4.addConstraint(Sketcher.Constraint("Coincident", 8, 3, -1, 1))
sketch4.addConstraint(Sketcher.Constraint("Equal", 1, 5))
sketch4.addConstraint(Sketcher.Constraint("Equal", 3, 8))
sketch4.addConstraint(Sketcher.Constraint("Symmetric", 1, 3, 5, 3, -1, 1))
sketch4.addConstraint(Sketcher.Constraint("Symmetric", 1, 1, 4, 2, -2))
sketch4.addConstraint(Sketcher.Constraint("Symmetric", 6, 2, 9, 2, -2))
sketch4.addConstraint(Sketcher.Constraint("Parallel", 0, 4))
sketch4.addConstraint(Sketcher.Constraint("Parallel", 6, 7))
sketch4.addConstraint(Sketcher.Constraint("Parallel", 4, 9))
sketch4.addConstraint(Sketcher.Constraint("Radius", 1, 2.0))
sketch4.addConstraint(Sketcher.Constraint("Radius", 3, 3.5))
sketch4.addConstraint(Sketcher.Constraint("DistanceX", -1, 1, 1, 3, 15.2))
sketch4.addConstraint(Sketcher.Constraint("DistanceY", -1, 1, 6, 2, 2.5))
sketch4.addConstraint(Sketcher.Constraint("DistanceY", 3, 1, 7, 2, 5.9))
sketch4.setExpression("Constraints[20]", "Params.sketch4_radius")
sketch4.setExpression("Constraints[21]", "Params.sketch4_radius2")
pocket3 = body.newObject("PartDesign::Pocket", "Pocket002")
pocket3.Profile = sketch4
pocket3.setExpression("Length", "Params.pocket3_length")

sketch5 = body.newObject("Sketcher::SketchObject", "Sketch004")
sketch5.AttachmentSupport = (doc.getObject("XZ_Plane"), [""])
sketch5.MapMode = "FlatFace"
sketch5.AttachmentOffset = App.Placement(App.Vector(0, 0, -113.1), App.Rotation())
sketch5.addGeometry(Part.LineSegment(App.Vector(8.224877, 2.5, 0), App.Vector(15.341569, 1.994983, 0)), False)
sketch5.addGeometry(Part.ArcOfCircle(Part.Circle(App.Vector(15.2, 0, 0), App.Vector(0, 0, 1), 2), math.radians(-85.940965), math.radians(85.940965)), False)
sketch5.addGeometry(Part.LineSegment(App.Vector(15.341569, -1.994983, 0), App.Vector(1.883481, -2.95, 0)), False)
sketch5.addGeometry(Part.ArcOfCircle(Part.Circle(App.Vector(0, 0, 0), App.Vector(0, 0, 1), 3.5), math.radians(-122.556932), math.radians(-57.443068)), False)
sketch5.addGeometry(Part.LineSegment(App.Vector(-1.883481, -2.95, 0), App.Vector(-15.341569, -1.994983, 0)), False)
sketch5.addGeometry(Part.ArcOfCircle(Part.Circle(App.Vector(-15.2, 0, 0), App.Vector(0, 0, 1), 2), math.radians(94.059035), math.radians(265.940965)), False)
sketch5.addGeometry(Part.LineSegment(App.Vector(-15.341569, 1.994983, 0), App.Vector(-8.224877, 2.5, 0)), False)
sketch5.addGeometry(Part.LineSegment(App.Vector(-8.224877, 2.5, 0), App.Vector(-1.883481, 2.95, 0)), False)
sketch5.addGeometry(Part.ArcOfCircle(Part.Circle(App.Vector(0, 0, 0), App.Vector(0, 0, 1), 3.5), math.radians(57.443068), math.radians(122.556932)), False)
sketch5.addGeometry(Part.LineSegment(App.Vector(1.883481, 2.95, 0), App.Vector(8.224877, 2.5, 0)), False)
sketch5.addConstraint(Sketcher.Constraint("Tangent", 0, 2, 1, 2))
sketch5.addConstraint(Sketcher.Constraint("Tangent", 1, 1, 2, 1))
sketch5.addConstraint(Sketcher.Constraint("Coincident", 2, 2, 3, 2))
sketch5.addConstraint(Sketcher.Constraint("Coincident", 3, 1, 4, 1))
sketch5.addConstraint(Sketcher.Constraint("Tangent", 4, 2, 5, 2))
sketch5.addConstraint(Sketcher.Constraint("Tangent", 5, 1, 6, 1))
sketch5.addConstraint(Sketcher.Constraint("Coincident", 6, 2, 7, 1))
sketch5.addConstraint(Sketcher.Constraint("Coincident", 7, 2, 8, 2))
sketch5.addConstraint(Sketcher.Constraint("Coincident", 8, 1, 9, 1))
sketch5.addConstraint(Sketcher.Constraint("Coincident", 9, 2, 0, 1))
sketch5.addConstraint(Sketcher.Constraint("Coincident", 3, 3, -1, 1))
sketch5.addConstraint(Sketcher.Constraint("Coincident", 8, 3, -1, 1))
sketch5.addConstraint(Sketcher.Constraint("Equal", 1, 5))
sketch5.addConstraint(Sketcher.Constraint("Equal", 3, 8))
sketch5.addConstraint(Sketcher.Constraint("Symmetric", 1, 3, 5, 3, -1, 1))
sketch5.addConstraint(Sketcher.Constraint("Symmetric", 1, 1, 4, 2, -2))
sketch5.addConstraint(Sketcher.Constraint("Symmetric", 6, 2, 9, 2, -2))
sketch5.addConstraint(Sketcher.Constraint("Parallel", 0, 4))
sketch5.addConstraint(Sketcher.Constraint("Parallel", 6, 7))
sketch5.addConstraint(Sketcher.Constraint("Parallel", 4, 9))
sketch5.addConstraint(Sketcher.Constraint("Radius", 1, 2.0))
sketch5.addConstraint(Sketcher.Constraint("Radius", 3, 3.5))
sketch5.addConstraint(Sketcher.Constraint("DistanceX", -1, 1, 1, 3, 15.2))
sketch5.addConstraint(Sketcher.Constraint("DistanceY", -1, 1, 6, 2, 2.5))
sketch5.addConstraint(Sketcher.Constraint("DistanceY", 3, 1, 7, 2, 5.9))
sketch5.setExpression("Constraints[20]", "Params.sketch5_radius")
sketch5.setExpression("Constraints[21]", "Params.sketch5_radius2")
pocket4 = body.newObject("PartDesign::Pocket", "Pocket003")
pocket4.Profile = sketch5
pocket4.setExpression("Length", "Params.pocket4_length")

sketch6 = body.newObject("Sketcher::SketchObject", "Sketch005")
sketch6.AttachmentSupport = (doc.getObject("XZ_Plane"), [""])
sketch6.MapMode = "FlatFace"
sketch6.addGeometry(Part.LineSegment(App.Vector(85, -7.5, 0), App.Vector(-85, -7.5, 0)), False)
sketch6.addGeometry(Part.ArcOfCircle(Part.Circle(App.Vector(-85, 0, 0), App.Vector(0, 0, 1), 7.5), math.radians(90), math.radians(270)), False)
sketch6.addGeometry(Part.LineSegment(App.Vector(-85, 7.5, 0), App.Vector(85, 7.5, 0)), False)
sketch6.addGeometry(Part.ArcOfCircle(Part.Circle(App.Vector(85, 0, 0), App.Vector(0, 0, 1), 7.5), math.radians(-90), math.radians(90)), False)
sketch6.addGeometry(Part.LineSegment(App.Vector(-8.224877, 2.5, 0), App.Vector(-15.341569, 1.994983, 0)), False)
sketch6.addGeometry(Part.ArcOfCircle(Part.Circle(App.Vector(-15.2, 0, 0), App.Vector(0, 0, 1), 2), math.radians(94.059035), math.radians(265.940965)), False)
sketch6.addGeometry(Part.LineSegment(App.Vector(-15.341569, -1.994983, 0), App.Vector(-1.883481, -2.95, 0)), False)
sketch6.addGeometry(Part.ArcOfCircle(Part.Circle(App.Vector(0, 0, 0), App.Vector(0, 0, 1), 3.5), math.radians(-122.556932), math.radians(-57.443068)), False)
sketch6.addGeometry(Part.LineSegment(App.Vector(1.883481, -2.95, 0), App.Vector(15.341569, -1.994983, 0)), False)
sketch6.addGeometry(Part.ArcOfCircle(Part.Circle(App.Vector(15.2, 0, 0), App.Vector(0, 0, 1), 2), math.radians(-85.940965), math.radians(85.940965)), False)
sketch6.addGeometry(Part.LineSegment(App.Vector(15.341569, 1.994983, 0), App.Vector(8.224877, 2.5, 0)), False)
sketch6.addGeometry(Part.LineSegment(App.Vector(8.224877, 2.5, 0), App.Vector(-8.224877, 2.5, 0)), False)
sketch6.addConstraint(Sketcher.Constraint("Tangent", 0, 2, 1, 2))
sketch6.addConstraint(Sketcher.Constraint("Tangent", 1, 1, 2, 1))
sketch6.addConstraint(Sketcher.Constraint("Tangent", 2, 2, 3, 2))
sketch6.addConstraint(Sketcher.Constraint("Tangent", 3, 1, 0, 1))
sketch6.addConstraint(Sketcher.Constraint("Tangent", 4, 2, 5, 1))
sketch6.addConstraint(Sketcher.Constraint("Tangent", 5, 2, 6, 1))
sketch6.addConstraint(Sketcher.Constraint("Coincident", 6, 2, 7, 1))
sketch6.addConstraint(Sketcher.Constraint("Coincident", 7, 2, 8, 1))
sketch6.addConstraint(Sketcher.Constraint("Tangent", 8, 2, 9, 1))
sketch6.addConstraint(Sketcher.Constraint("Tangent", 9, 2, 10, 1))
sketch6.addConstraint(Sketcher.Constraint("Coincident", 10, 2, 11, 1))
sketch6.addConstraint(Sketcher.Constraint("Coincident", 11, 2, 4, 1))
sketch6.addConstraint(Sketcher.Constraint("Horizontal", 0))
sketch6.addConstraint(Sketcher.Constraint("Horizontal", 2))
sketch6.addConstraint(Sketcher.Constraint("Horizontal", 11))
sketch6.addConstraint(Sketcher.Constraint("Coincident", 7, 3, -1, 1))
sketch6.addConstraint(Sketcher.Constraint("Equal", 5, 9))
sketch6.addConstraint(Sketcher.Constraint("Symmetric", 1, 3, 3, 3, -1, 1))
sketch6.addConstraint(Sketcher.Constraint("Symmetric", 5, 3, 9, 3, -1, 1))
sketch6.addConstraint(Sketcher.Constraint("Symmetric", 5, 2, 8, 2, -2))
sketch6.addConstraint(Sketcher.Constraint("Parallel", 4, 8))
sketch6.addConstraint(Sketcher.Constraint("Parallel", 6, 10))
sketch6.addConstraint(Sketcher.Constraint("Radius", 5, 2.0))
sketch6.addConstraint(Sketcher.Constraint("Radius", 1, 7.5))
sketch6.addConstraint(Sketcher.Constraint("Radius", 7, 3.5))
sketch6.addConstraint(Sketcher.Constraint("DistanceX", 0, 2, 0, 1, 170.0))
sketch6.addConstraint(Sketcher.Constraint("DistanceX", 5, 3, -1, 1, 15.2))
sketch6.addConstraint(Sketcher.Constraint("DistanceY", -1, 1, 10, 2, 2.5))
sketch6.addConstraint(Sketcher.Constraint("DistanceY", 6, 2, -1, 1, 2.95))
sketch6.setExpression("Constraints[22]", "Params.sketch6_radius")
sketch6.setExpression("Constraints[23]", "Params.sketch6_radius2")
sketch6.setExpression("Constraints[24]", "Params.sketch6_radius3")
sketch6.setExpression("Constraints[25]", "Params.sketch6_width")
pocket5 = body.newObject("PartDesign::Pocket", "Pocket004")
pocket5.Profile = sketch6
pocket5.setExpression("Length", "Params.pocket5_length")

sketch7 = body.newObject("Sketcher::SketchObject", "Sketch006")
sketch7.AttachmentSupport = (doc.getObject("XZ_Plane"), [""])
sketch7.MapMode = "FlatFace"
sketch7.AttachmentOffset = App.Placement(App.Vector(0, 0, -113.1), App.Rotation())
sketch7.addGeometry(Part.LineSegment(App.Vector(85, -7.5, 0), App.Vector(-85, -7.5, 0)), False)
sketch7.addGeometry(Part.ArcOfCircle(Part.Circle(App.Vector(-85, 0, 0), App.Vector(0, 0, 1), 7.5), math.radians(90), math.radians(270)), False)
sketch7.addGeometry(Part.LineSegment(App.Vector(-85, 7.5, 0), App.Vector(85, 7.5, 0)), False)
sketch7.addGeometry(Part.ArcOfCircle(Part.Circle(App.Vector(85, 0, 0), App.Vector(0, 0, 1), 7.5), math.radians(-90), math.radians(90)), False)
sketch7.addConstraint(Sketcher.Constraint("Tangent", 0, 2, 1, 2))
sketch7.addConstraint(Sketcher.Constraint("Tangent", 1, 1, 2, 1))
sketch7.addConstraint(Sketcher.Constraint("Tangent", 2, 2, 3, 2))
sketch7.addConstraint(Sketcher.Constraint("Tangent", 3, 1, 0, 1))
sketch7.addConstraint(Sketcher.Constraint("Horizontal", 0))
sketch7.addConstraint(Sketcher.Constraint("Horizontal", 2))
sketch7.addConstraint(Sketcher.Constraint("Symmetric", 1, 3, 3, 3, -1, 1))
sketch7.addConstraint(Sketcher.Constraint("Radius", 1, 7.5))
sketch7.addConstraint(Sketcher.Constraint("DistanceX", 0, 2, 0, 1, 170.0))
sketch7.setExpression("Constraints[7]", "Params.sketch7_radius")
sketch7.setExpression("Constraints[8]", "Params.sketch7_width")
pocket6 = body.newObject("PartDesign::Pocket", "Pocket005")
pocket6.Profile = sketch7
pocket6.setExpression("Length", "Params.pocket6_length")

doc.recompute()
